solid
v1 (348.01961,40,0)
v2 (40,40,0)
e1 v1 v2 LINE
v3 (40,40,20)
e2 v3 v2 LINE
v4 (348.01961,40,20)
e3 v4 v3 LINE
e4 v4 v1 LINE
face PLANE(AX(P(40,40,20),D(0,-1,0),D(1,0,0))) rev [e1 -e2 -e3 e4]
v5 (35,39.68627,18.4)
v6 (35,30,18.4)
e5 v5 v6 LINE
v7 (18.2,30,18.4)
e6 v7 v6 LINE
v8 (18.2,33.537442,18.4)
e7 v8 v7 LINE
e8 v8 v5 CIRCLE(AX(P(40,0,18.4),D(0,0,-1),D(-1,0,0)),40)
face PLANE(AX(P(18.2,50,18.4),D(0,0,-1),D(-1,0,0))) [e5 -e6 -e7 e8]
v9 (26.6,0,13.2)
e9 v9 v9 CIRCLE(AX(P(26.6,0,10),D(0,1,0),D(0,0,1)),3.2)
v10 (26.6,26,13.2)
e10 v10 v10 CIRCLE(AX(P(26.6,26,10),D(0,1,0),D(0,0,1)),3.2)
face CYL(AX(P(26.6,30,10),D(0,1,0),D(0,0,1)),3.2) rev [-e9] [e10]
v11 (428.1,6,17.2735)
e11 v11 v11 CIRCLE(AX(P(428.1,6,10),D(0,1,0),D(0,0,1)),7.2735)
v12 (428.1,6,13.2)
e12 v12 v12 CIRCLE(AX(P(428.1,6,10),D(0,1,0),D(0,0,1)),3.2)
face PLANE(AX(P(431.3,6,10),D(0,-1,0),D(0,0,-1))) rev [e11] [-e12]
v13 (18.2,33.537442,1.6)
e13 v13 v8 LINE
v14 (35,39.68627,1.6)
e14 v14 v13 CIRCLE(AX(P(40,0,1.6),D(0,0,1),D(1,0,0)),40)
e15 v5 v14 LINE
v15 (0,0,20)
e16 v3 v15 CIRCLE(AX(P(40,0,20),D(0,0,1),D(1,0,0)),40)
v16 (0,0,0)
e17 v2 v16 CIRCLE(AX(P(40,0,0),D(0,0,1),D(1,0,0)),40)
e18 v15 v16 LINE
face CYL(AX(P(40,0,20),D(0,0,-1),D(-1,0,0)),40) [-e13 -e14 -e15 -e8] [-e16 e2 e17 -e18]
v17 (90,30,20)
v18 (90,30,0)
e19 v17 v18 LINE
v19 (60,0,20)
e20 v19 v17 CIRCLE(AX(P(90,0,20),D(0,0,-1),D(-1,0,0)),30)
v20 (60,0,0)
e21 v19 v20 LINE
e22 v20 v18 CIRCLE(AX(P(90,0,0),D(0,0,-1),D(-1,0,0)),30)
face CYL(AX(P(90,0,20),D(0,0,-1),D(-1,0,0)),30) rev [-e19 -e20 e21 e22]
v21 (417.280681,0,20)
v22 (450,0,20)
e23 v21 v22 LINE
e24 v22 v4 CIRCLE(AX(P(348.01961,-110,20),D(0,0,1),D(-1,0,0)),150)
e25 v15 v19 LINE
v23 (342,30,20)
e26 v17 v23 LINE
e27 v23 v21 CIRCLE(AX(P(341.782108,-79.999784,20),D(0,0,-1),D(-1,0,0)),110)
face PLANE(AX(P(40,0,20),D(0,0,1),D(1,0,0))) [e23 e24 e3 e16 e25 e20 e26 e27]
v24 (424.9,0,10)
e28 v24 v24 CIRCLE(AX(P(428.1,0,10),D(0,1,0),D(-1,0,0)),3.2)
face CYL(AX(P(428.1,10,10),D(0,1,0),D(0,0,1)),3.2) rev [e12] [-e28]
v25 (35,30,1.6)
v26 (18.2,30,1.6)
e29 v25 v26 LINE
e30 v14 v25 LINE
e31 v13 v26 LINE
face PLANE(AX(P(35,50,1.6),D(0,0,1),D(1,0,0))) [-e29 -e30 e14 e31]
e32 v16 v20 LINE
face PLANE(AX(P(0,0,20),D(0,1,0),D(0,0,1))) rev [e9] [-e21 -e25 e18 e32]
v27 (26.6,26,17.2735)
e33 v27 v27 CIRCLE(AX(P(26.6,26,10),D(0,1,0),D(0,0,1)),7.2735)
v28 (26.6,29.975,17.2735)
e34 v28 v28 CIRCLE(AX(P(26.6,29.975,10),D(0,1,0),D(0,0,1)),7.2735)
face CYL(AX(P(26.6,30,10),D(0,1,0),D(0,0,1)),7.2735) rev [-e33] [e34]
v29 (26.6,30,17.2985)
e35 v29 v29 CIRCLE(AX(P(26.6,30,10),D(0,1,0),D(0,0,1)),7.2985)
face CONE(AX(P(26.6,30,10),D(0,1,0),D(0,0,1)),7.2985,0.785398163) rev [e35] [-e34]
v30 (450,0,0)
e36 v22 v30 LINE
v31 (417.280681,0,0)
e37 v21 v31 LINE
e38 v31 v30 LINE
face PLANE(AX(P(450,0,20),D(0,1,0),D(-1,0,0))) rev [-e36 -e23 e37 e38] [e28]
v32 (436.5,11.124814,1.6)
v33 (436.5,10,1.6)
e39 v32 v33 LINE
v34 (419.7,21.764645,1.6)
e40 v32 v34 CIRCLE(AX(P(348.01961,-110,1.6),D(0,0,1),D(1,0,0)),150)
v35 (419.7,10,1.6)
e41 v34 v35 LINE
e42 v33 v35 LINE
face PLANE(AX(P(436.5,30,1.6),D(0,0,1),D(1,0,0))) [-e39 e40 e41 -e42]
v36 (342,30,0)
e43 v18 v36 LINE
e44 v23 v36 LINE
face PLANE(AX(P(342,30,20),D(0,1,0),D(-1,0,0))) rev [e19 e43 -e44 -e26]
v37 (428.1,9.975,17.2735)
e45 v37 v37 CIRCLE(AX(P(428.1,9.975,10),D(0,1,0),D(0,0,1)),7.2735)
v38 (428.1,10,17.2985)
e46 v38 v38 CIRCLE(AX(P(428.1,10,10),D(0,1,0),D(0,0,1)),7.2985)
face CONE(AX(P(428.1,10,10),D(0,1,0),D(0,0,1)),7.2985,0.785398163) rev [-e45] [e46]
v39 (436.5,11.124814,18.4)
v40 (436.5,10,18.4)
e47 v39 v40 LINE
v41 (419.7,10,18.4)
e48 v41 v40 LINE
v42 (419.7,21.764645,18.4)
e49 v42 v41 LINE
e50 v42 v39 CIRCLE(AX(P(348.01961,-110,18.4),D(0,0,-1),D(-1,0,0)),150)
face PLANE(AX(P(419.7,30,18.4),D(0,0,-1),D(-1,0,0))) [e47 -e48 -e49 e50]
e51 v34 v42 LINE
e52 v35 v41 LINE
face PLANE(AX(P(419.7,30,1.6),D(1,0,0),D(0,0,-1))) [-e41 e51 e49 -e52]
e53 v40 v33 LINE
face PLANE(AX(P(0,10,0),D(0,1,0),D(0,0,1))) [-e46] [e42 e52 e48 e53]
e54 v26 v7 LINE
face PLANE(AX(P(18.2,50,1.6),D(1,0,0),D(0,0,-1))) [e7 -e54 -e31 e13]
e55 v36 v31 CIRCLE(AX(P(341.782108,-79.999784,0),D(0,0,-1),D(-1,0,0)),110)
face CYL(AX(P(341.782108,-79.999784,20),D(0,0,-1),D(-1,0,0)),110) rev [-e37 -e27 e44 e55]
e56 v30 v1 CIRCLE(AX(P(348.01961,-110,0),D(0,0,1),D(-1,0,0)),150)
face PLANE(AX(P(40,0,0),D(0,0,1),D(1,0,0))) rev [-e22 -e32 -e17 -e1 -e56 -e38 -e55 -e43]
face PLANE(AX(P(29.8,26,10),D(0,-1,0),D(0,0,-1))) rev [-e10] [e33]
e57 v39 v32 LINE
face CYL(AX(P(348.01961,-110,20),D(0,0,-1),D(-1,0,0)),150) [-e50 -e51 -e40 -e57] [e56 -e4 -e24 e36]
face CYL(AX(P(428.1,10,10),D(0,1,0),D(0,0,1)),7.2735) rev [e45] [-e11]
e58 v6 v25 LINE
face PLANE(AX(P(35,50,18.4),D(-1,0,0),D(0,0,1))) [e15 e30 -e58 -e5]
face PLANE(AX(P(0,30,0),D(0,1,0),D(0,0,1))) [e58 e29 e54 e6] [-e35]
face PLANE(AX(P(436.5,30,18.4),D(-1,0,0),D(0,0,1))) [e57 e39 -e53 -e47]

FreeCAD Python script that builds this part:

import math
import FreeCAD as App
import Part
import Sketcher

V = App.Vector
Q = App.Units.Quantity

doc = App.newDocument("Part")
body = doc.addObject("PartDesign::Body", "Body")

sketch1 = body.newObject("Sketcher::SketchObject", "Sketch")
sketch1.AttachmentSupport = (doc.getObject("XY_Plane"), [""])
sketch1.MapMode = "FlatFace"
sketch1.addGeometry([
    Part.LineSegment(V(348, 40, 0), V(40, 40, 0)),
    Part.ArcOfCircle(Part.Circle(V(40, 0, 0), V(0, 0, 1), 40), math.radians(90), math.radians(180)),
    Part.LineSegment(V(0, 0, 0), V(60, 0, 0)),
    Part.ArcOfCircle(Part.Circle(V(90, 0, 0), V(0, 0, 1), 30), math.radians(90), math.radians(180)),
    Part.LineSegment(V(90, 30, 0), V(342, 30, 0)),
    Part.ArcOfCircle(Part.Circle(V(342, -80, 0), V(0, 0, 1), 110), math.radians(47), math.radians(90)),
    Part.LineSegment(V(417, 0, 0), V(450, 0, 0)),
    Part.ArcOfCircle(Part.Circle(V(348, -110, 0), V(0, 0, 1), 150), math.radians(47), math.radians(90)),
], False)
sketch1.addConstraint([
    Sketcher.Constraint("Tangent", 0, 2, 1, 1),
    Sketcher.Constraint("Coincident", 1, 2, 2, 1),
    Sketcher.Constraint("Coincident", 2, 2, 3, 2),
    Sketcher.Constraint("Tangent", 3, 1, 4, 1),
    Sketcher.Constraint("Coincident", 4, 2, 5, 2),
    Sketcher.Constraint("Coincident", 5, 1, 6, 1),
    Sketcher.Constraint("Coincident", 6, 2, 7, 1),
    Sketcher.Constraint("Tangent", 7, 2, 0, 1),
    Sketcher.Constraint("Horizontal", 0),
    Sketcher.Constraint("Horizontal", 2),
    Sketcher.Constraint("Horizontal", 4),
    Sketcher.Constraint("Horizontal", 6),
    Sketcher.Constraint("Coincident", 1, 2, -1, 1),
    Sketcher.Constraint("PointOnObject", 1, 3, -1),
    Sketcher.Constraint("PointOnObject", 3, 3, -1),
    Sketcher.Constraint("PointOnObject", 5, 1, -1),
    Sketcher.Constraint("Radius", 1, 40.0),
    Sketcher.Constraint("Radius", 3, 30.0),
    Sketcher.Constraint("Radius", 5, 110.0),
    Sketcher.Constraint("Radius", 7, 150.0),
    Sketcher.Constraint("DistanceX", 2, 1, 2, 2, 60.0),
    Sketcher.Constraint("DistanceX", 4, 1, 4, 2, 252.0),
    Sketcher.Constraint("DistanceX", -1, 1, 6, 2, 450.0),
    Sketcher.Constraint("DistanceX", 6, 1, 6, 2, 32.719319),
])
pad1 = body.newObject("PartDesign::Pad", "Pad")
pad1.Profile = sketch1
pad1.Length = 20

sketch2 = body.newObject("Sketcher::SketchObject", "Sketch001")
sketch2.AttachmentSupport = (doc.getObject("XZ_Plane"), [""])
sketch2.MapMode = "FlatFace"
sketch2.AttachmentOffset = App.Placement(V(0, 0, -30), App.Rotation())
sketch2.addGeometry([
    Part.LineSegment(V(18, 2, 0), V(18, 18, 0)),
    Part.LineSegment(V(18, 18, 0), V(35, 18, 0)),
    Part.LineSegment(V(35, 18, 0), V(35, 2, 0)),
    Part.LineSegment(V(35, 2, 0), V(18, 2, 0)),
], False)
sketch2.addConstraint([
    Sketcher.Constraint("Coincident", 0, 2, 1, 1),
    Sketcher.Constraint("Coincident", 1, 2, 2, 1),
    Sketcher.Constraint("Coincident", 2, 2, 3, 1),
    Sketcher.Constraint("Coincident", 3, 2, 0, 1),
    Sketcher.Constraint("Vertical", 0),
    Sketcher.Constraint("Horizontal", 1),
    Sketcher.Constraint("Vertical", 2),
    Sketcher.Constraint("Horizontal", 3),
    Sketcher.Constraint("Equal", 3, 0),
    Sketcher.Constraint("DistanceX", 1, 1, 1, 2, 16.8),
    Sketcher.Constraint("DistanceX", -1, 1, 1, 2, 35.0),
    Sketcher.Constraint("DistanceY", -1, 1, 0, 2, 18.4),
])
pocket1 = body.newObject("PartDesign::Pocket", "Pocket")
pocket1.Profile = sketch2
pocket1.Length = 20

sketch3 = body.newObject("Sketcher::SketchObject", "Sketch002")
sketch3.AttachmentSupport = (doc.getObject("XZ_Plane"), [""])
sketch3.MapMode = "FlatFace"
sketch3.AttachmentOffset = App.Placement(V(0, 0, -10), App.Rotation())
sketch3.addGeometry([
    Part.LineSegment(V(420, 2, 0), V(420, 18, 0)),
    Part.LineSegment(V(420, 18, 0), V(436, 18, 0)),
    Part.LineSegment(V(436, 18, 0), V(436, 2, 0)),
    Part.LineSegment(V(436, 2, 0), V(420, 2, 0)),
], False)
sketch3.addConstraint([
    Sketcher.Constraint("Coincident", 0, 2, 1, 1),
    Sketcher.Constraint("Coincident", 1, 2, 2, 1),
    Sketcher.Constraint("Coincident", 2, 2, 3, 1),
    Sketcher.Constraint("Coincident", 3, 2, 0, 1),
    Sketcher.Constraint("Vertical", 0),
    Sketcher.Constraint("Horizontal", 1),
    Sketcher.Constraint("Vertical", 2),
    Sketcher.Constraint("Horizontal", 3),
    Sketcher.Constraint("Equal", 3, 0),
    Sketcher.Constraint("DistanceX", 1, 1, 1, 2, 16.8),
    Sketcher.Constraint("DistanceX", -1, 1, 0, 2, 419.7),
    Sketcher.Constraint("DistanceY", -1, 1, 0, 2, 18.4),
])
pocket2 = body.newObject("PartDesign::Pocket", "Pocket001")
pocket2.Profile = sketch3
pocket2.Length = 20

sketch4 = body.newObject("Sketcher::SketchObject", "Sketch003")
sketch4.AttachmentSupport = (doc.getObject("YZ_Plane"), [""])
sketch4.MapMode = "FlatFace"
sketch4.AttachmentOffset = App.Placement(V(0, 0, 428.1), App.Rotation())
sketch4.addGeometry([
    Part.LineSegment(V(-16.923, 10, 0), V(10, 10, 0)),
    Part.LineSegment(V(10, 10, 0), V(10, 17.299, 0)),
    Part.LineSegment(V(10, 17.299, 0), V(9.975, 17.273, 0)),
    Part.LineSegment(V(9.975, 17.273, 0), V(6, 17.273, 0)),
    Part.LineSegment(V(6, 17.273, 0), V(6, 13.2, 0)),
    Part.LineSegment(V(6, 13.2, 0), V(-15, 13.2, 0)),
    Part.LineSegment(V(-15, 13.2, 0), V(-16.923, 10, 0)),
], False)
sketch4.addGeometry(Part.LineSegment(V(10, 10, 0), V(-16.923, 10, 0)), True)
sketch4.addConstraint([
    Sketcher.Constraint("Coincident", 0, 2, 1, 1),
    Sketcher.Constraint("Coincident", 1, 2, 2, 1),
    Sketcher.Constraint("Coincident", 2, 2, 3, 1),
    Sketcher.Constraint("Coincident", 3, 2, 4, 1),
    Sketcher.Constraint("Coincident", 4, 2, 5, 1),
    Sketcher.Constraint("Coincident", 5, 2, 6, 1),
    Sketcher.Constraint("Coincident", 6, 2, 0, 1),
    Sketcher.Constraint("Horizontal", 0),
    Sketcher.Constraint("Vertical", 1),
    Sketcher.Constraint("Horizontal", 3),
    Sketcher.Constraint("Vertical", 4),
    Sketcher.Constraint("Horizontal", 5),
    Sketcher.Constraint("Horizontal", 7),
    Sketcher.Constraint("Coincident", 7, 1, 0, 2),
    Sketcher.Constraint("Equal", 0, 7),
    Sketcher.Constraint("DistanceX", 5, 2, 5, 1, 21.0),
    Sketcher.Constraint("Angle", 2, Q("-135 deg")),
    Sketcher.Constraint("Angle", 6, Q("-121 deg")),
    Sketcher.Constraint("DistanceX", -1, 1, 0, 2, 10.0),
    Sketcher.Constraint("DistanceY", -1, 1, 0, 2, 10.0),
    Sketcher.Constraint("DistanceX", -1, 1, 3, 2, 6.0),
    Sketcher.Constraint("DistanceY", -1, 1, 4, 2, 13.2),
    Sketcher.Constraint("DistanceX", 3, 2, 3, 1, 3.975),
    Sketcher.Constraint("DistanceY", 1, 1, 1, 2, 7.2985),
])
groove = body.newObject("PartDesign::Groove", "Groove")
groove.Profile = sketch4
groove.ReferenceAxis = (sketch4, ["Axis0"])
groove.Angle = 360

sketch5 = body.newObject("Sketcher::SketchObject", "Sketch004")
sketch5.AttachmentSupport = (doc.getObject("YZ_Plane"), [""])
sketch5.MapMode = "FlatFace"
sketch5.AttachmentOffset = App.Placement(V(0, 0, 26.6), App.Rotation())
sketch5.addGeometry([
    Part.LineSegment(V(-11.923, 10, 0), V(30, 10, 0)),
    Part.LineSegment(V(30, 10, 0), V(30, 17.299, 0)),
    Part.LineSegment(V(30, 17.299, 0), V(29.975, 17.273, 0)),
    Part.LineSegment(V(29.975, 17.273, 0), V(26, 17.273, 0)),
    Part.LineSegment(V(26, 17.273, 0), V(26, 13.2, 0)),
    Part.LineSegment(V(26, 13.2, 0), V(-10, 13.2, 0)),
    Part.LineSegment(V(-10, 13.2, 0), V(-11.923, 10, 0)),
], False)
sketch5.addGeometry(Part.LineSegment(V(30, 10, 0), V(-11.923, 10, 0)), True)
sketch5.addConstraint([
    Sketcher.Constraint("Coincident", 0, 2, 1, 1),
    Sketcher.Constraint("Coincident", 1, 2, 2, 1),
    Sketcher.Constraint("Coincident", 2, 2, 3, 1),
    Sketcher.Constraint("Coincident", 3, 2, 4, 1),
    Sketcher.Constraint("Coincident", 4, 2, 5, 1),
    Sketcher.Constraint("Coincident", 5, 2, 6, 1),
    Sketcher.Constraint("Coincident", 6, 2, 0, 1),
    Sketcher.Constraint("Horizontal", 0),
    Sketcher.Constraint("Vertical", 1),
    Sketcher.Constraint("Horizontal", 3),
    Sketcher.Constraint("Vertical", 4),
    Sketcher.Constraint("Horizontal", 5),
    Sketcher.Constraint("Horizontal", 7),
    Sketcher.Constraint("Coincident", 7, 1, 0, 2),
    Sketcher.Constraint("Equal", 0, 7),
    Sketcher.Constraint("DistanceX", 5, 2, 5, 1, 36.0),
    Sketcher.Constraint("Angle", 2, Q("-135 deg")),
    Sketcher.Constraint("Angle", 6, Q("-121 deg")),
    Sketcher.Constraint("DistanceX", -1, 1, 0, 2, 30.0),
    Sketcher.Constraint("DistanceY", -1, 1, 0, 2, 10.0),
    Sketcher.Constraint("DistanceX", -1, 1, 3, 2, 26.0),
    Sketcher.Constraint("DistanceY", -1, 1, 4, 2, 13.2),
    Sketcher.Constraint("DistanceX", 3, 2, 3, 1, 3.975),
    Sketcher.Constraint("DistanceY", 1, 1, 1, 2, 7.2985),
])
groove2 = body.newObject("PartDesign::Groove", "Groove001")
groove2.Profile = sketch5
groove2.ReferenceAxis = (sketch5, ["Axis0"])
groove2.Angle = 360

doc.recompute()
